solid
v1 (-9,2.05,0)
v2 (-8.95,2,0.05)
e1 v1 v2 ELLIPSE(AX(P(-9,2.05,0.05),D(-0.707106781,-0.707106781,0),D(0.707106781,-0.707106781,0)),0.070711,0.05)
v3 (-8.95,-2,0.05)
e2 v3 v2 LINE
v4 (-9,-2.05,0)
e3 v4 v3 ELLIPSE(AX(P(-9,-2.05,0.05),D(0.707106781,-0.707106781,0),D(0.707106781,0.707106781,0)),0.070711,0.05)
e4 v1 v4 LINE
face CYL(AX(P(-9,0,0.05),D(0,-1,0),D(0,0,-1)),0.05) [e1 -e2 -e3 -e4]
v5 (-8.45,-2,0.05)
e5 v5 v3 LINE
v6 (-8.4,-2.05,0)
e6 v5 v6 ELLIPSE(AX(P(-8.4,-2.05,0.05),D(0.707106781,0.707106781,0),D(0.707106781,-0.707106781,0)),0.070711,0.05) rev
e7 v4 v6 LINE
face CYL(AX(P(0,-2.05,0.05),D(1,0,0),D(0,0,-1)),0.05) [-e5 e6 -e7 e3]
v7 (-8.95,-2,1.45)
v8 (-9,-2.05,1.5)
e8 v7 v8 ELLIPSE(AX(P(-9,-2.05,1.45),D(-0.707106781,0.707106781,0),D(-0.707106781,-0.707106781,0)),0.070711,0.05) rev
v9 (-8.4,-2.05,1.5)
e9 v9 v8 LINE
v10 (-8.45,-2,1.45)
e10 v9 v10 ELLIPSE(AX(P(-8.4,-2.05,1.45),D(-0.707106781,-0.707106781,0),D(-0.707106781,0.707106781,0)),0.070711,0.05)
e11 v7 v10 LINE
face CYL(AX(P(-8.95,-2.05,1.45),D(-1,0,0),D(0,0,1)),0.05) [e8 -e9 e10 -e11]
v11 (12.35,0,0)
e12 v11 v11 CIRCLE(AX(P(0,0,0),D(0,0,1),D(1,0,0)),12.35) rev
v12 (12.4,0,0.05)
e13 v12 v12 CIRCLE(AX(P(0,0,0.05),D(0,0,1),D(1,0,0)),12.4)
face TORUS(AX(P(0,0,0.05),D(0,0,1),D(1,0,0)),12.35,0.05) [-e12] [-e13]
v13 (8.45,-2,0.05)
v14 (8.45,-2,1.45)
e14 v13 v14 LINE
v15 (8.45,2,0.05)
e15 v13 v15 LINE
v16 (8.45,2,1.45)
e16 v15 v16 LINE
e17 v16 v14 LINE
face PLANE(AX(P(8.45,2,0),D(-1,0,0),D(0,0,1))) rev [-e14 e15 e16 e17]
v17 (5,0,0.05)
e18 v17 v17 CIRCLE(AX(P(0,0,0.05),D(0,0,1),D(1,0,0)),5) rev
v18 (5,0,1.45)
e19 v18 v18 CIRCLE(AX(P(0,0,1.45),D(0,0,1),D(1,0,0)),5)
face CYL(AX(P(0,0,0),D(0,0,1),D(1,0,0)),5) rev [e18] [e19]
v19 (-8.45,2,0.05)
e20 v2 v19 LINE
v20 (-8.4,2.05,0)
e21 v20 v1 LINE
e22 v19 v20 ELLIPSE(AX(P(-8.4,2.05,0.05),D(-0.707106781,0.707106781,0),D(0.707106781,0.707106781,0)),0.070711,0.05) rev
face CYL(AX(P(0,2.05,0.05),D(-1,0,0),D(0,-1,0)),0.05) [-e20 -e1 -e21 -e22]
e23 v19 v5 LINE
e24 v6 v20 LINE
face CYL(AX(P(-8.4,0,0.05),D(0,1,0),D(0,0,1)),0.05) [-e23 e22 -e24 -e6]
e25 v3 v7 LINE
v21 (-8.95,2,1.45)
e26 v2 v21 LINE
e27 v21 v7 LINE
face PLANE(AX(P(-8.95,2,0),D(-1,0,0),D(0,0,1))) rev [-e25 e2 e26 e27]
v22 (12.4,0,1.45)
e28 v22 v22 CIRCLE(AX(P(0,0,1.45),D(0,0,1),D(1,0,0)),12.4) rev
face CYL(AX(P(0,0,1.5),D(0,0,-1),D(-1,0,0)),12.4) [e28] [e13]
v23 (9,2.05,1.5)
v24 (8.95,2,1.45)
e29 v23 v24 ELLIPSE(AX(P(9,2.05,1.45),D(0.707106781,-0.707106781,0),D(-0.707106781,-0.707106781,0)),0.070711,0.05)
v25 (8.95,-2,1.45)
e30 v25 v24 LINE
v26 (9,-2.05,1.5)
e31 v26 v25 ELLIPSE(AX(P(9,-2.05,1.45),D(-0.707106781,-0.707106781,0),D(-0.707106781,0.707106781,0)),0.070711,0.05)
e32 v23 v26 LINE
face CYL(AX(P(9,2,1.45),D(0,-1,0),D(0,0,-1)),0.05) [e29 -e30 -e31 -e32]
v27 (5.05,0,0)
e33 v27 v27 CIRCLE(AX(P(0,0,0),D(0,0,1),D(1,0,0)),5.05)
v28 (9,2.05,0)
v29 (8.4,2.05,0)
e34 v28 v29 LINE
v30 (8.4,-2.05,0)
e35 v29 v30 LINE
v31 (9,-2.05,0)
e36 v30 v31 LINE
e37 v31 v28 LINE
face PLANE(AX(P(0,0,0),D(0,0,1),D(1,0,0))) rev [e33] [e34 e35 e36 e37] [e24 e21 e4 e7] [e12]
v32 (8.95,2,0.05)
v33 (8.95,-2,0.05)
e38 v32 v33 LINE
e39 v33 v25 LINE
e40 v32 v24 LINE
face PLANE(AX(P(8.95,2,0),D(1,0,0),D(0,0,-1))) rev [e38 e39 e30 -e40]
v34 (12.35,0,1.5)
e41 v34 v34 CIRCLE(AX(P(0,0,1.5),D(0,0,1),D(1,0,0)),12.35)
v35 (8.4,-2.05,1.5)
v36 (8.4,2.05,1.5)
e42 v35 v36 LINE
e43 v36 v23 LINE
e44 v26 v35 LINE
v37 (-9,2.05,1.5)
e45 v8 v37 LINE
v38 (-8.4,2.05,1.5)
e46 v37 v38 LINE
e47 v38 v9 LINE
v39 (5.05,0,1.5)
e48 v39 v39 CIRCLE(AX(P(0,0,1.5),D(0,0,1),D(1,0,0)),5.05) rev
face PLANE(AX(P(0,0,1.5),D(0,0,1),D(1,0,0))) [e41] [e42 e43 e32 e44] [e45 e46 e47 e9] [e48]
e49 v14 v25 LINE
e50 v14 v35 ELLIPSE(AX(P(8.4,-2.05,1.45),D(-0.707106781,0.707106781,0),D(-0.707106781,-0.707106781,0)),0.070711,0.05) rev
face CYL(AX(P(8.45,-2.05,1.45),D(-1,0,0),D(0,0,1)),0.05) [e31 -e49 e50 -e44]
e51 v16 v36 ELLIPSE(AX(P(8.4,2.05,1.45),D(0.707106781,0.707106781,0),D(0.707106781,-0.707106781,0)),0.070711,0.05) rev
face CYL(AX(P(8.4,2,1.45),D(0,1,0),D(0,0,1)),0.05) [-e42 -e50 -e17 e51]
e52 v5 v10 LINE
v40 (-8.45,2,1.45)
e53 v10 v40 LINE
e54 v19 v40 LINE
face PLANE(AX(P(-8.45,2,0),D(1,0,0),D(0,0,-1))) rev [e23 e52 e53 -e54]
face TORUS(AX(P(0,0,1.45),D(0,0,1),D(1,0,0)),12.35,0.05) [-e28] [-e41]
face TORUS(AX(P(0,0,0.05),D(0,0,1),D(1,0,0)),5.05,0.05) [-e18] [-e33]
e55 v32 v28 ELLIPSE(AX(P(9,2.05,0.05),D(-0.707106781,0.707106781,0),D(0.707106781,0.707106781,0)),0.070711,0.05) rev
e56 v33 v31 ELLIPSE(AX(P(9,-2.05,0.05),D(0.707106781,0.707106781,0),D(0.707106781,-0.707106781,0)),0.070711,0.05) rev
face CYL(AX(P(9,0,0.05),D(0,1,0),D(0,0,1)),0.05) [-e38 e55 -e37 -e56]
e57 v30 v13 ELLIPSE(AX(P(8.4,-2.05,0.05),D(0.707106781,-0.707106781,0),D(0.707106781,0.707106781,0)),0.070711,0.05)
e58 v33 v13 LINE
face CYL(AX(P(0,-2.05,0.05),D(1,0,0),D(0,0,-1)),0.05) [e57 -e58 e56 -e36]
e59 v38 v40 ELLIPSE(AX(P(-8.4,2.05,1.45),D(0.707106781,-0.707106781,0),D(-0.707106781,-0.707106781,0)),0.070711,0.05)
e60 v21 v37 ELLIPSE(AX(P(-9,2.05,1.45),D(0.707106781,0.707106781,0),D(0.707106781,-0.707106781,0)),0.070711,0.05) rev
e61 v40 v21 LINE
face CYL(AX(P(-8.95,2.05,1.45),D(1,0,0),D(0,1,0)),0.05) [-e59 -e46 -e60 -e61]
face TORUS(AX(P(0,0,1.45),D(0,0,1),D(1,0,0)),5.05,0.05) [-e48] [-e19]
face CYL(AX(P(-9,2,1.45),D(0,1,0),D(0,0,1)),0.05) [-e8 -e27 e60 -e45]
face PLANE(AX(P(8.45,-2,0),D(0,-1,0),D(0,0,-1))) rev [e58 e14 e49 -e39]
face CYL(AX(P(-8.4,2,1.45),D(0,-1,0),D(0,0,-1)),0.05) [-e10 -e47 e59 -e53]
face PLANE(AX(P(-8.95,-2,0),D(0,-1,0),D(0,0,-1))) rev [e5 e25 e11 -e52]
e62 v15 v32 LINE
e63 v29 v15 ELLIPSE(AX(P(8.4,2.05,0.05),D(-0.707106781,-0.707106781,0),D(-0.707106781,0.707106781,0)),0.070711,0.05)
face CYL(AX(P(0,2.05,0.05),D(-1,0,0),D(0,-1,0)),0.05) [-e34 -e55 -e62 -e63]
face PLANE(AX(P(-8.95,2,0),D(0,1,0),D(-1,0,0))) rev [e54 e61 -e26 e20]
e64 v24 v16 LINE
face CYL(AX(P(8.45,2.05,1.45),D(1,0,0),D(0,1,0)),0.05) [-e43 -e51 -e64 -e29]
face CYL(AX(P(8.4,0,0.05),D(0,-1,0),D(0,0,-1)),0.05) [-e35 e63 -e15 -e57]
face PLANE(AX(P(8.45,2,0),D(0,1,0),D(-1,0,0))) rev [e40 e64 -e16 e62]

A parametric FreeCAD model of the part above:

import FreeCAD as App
import Part
import Sketcher


def edges_at(feature, points):
    """Names of the edges that pass closest to the given points."""
    edges = feature.Shape.Edges
    near = lambda p: min(range(len(edges)), key=lambda i: edges[i].distToShape(Part.Vertex(*p))[0])
    return sorted({f"Edge{near(p) + 1}" for p in points})

doc = App.newDocument("Part")
params = doc.addObject("Spreadsheet::Sheet", "Params")
for row, (alias, value) in enumerate([
    ("sketch1_diameter", "24.8 mm"),
    ("pad1_length", "1.5 mm"),
    ("sketch2_diameter", "10 mm"),
    ("sketch2_height", "4 mm"),
    ("sketch2_width", "0.5 mm"),
    ("fillet_radius", "0.05 mm"),
], start=1):
    params.set(f"A{row}", alias)
    params.set(f"B{row}", "=" + value)
    params.setAlias(f"B{row}", alias)

body = doc.addObject("PartDesign::Body", "Body")

# Sketch on XY plane
sketch1 = doc.addObject("Sketcher::SketchObject", "Sketch")
body.addObject(sketch1)
sketch1.AttachmentSupport = (doc.XY_Plane, [""])
sketch1.MapMode = "FlatFace"
sketch1.addGeometry(Part.Circle(App.Vector(0, 0, 0), App.Vector(0, 0, 1), 12.4), False)
sketch1.addConstraint(Sketcher.Constraint("Coincident", 0, 3, -1, 1))
sketch1.addConstraint(Sketcher.Constraint("Diameter", 0, 24.8))
sketch1.setExpression("Constraints[1]", "Params.sketch1_diameter")
pad1 = doc.addObject("PartDesign::Pad", "Pad")
body.addObject(pad1)
pad1.Profile = sketch1
pad1.setExpression("Length", "Params.pad1_length")

# Sketch on XY plane
sketch2 = doc.addObject("Sketcher::SketchObject", "Sketch001")
body.addObject(sketch2)
sketch2.AttachmentSupport = (doc.XY_Plane, [""])
sketch2.MapMode = "FlatFace"
sketch2.AttachmentOffset = App.Placement(App.Vector(0, 0, 1.5), App.Rotation())
sketch2.addGeometry(Part.Circle(App.Vector(0, 0, 0), App.Vector(0, 0, 1), 5), False)
sketch2.addGeometry(Part.LineSegment(App.Vector(-8.95, 2, 0), App.Vector(-8.95, -2, 0)), False)
sketch2.addGeometry(Part.LineSegment(App.Vector(-8.95, -2, 0), App.Vector(-8.45, -2, 0)), False)
sketch2.addGeometry(Part.LineSegment(App.Vector(-8.45, -2, 0), App.Vector(-8.45, 2, 0)), False)
sketch2.addGeometry(Part.LineSegment(App.Vector(-8.45, 2, 0), App.Vector(-8.95, 2, 0)), False)
sketch2.addGeometry(Part.LineSegment(App.Vector(8.45, 2, 0), App.Vector(8.45, -2, 0)), False)
sketch2.addGeometry(Part.LineSegment(App.Vector(8.45, -2, 0), App.Vector(8.95, -2, 0)), False)
sketch2.addGeometry(Part.LineSegment(App.Vector(8.95, -2, 0), App.Vector(8.95, 2, 0)), False)
sketch2.addGeometry(Part.LineSegment(App.Vector(8.95, 2, 0), App.Vector(8.45, 2, 0)), False)
sketch2.addConstraint(Sketcher.Constraint("Coincident", 1, 2, 2, 1))
sketch2.addConstraint(Sketcher.Constraint("Coincident", 2, 2, 3, 1))
sketch2.addConstraint(Sketcher.Constraint("Coincident", 3, 2, 4, 1))
sketch2.addConstraint(Sketcher.Constraint("Coincident", 4, 2, 1, 1))
sketch2.addConstraint(Sketcher.Constraint("Coincident", 5, 2, 6, 1))
sketch2.addConstraint(Sketcher.Constraint("Coincident", 6, 2, 7, 1))
sketch2.addConstraint(Sketcher.Constraint("Coincident", 7, 2, 8, 1))
sketch2.addConstraint(Sketcher.Constraint("Coincident", 8, 2, 5, 1))
sketch2.addConstraint(Sketcher.Constraint("Vertical", 1))
sketch2.addConstraint(Sketcher.Constraint("Horizontal", 2))
sketch2.addConstraint(Sketcher.Constraint("Vertical", 3))
sketch2.addConstraint(Sketcher.Constraint("Horizontal", 4))
sketch2.addConstraint(Sketcher.Constraint("Vertical", 5))
sketch2.addConstraint(Sketcher.Constraint("Horizontal", 6))
sketch2.addConstraint(Sketcher.Constraint("Vertical", 7))
sketch2.addConstraint(Sketcher.Constraint("Horizontal", 8))
sketch2.addConstraint(Sketcher.Constraint("Coincident", 0, 3, -1, 1))
sketch2.addConstraint(Sketcher.Constraint("Symmetric", 3, 2, 5, 2, -1, 1))
sketch2.addConstraint(Sketcher.Constraint("Symmetric", 1, 2, 7, 2, -1, 1))
sketch2.addConstraint(Sketcher.Constraint("Horizontal", 2, 2, 5, 2))
sketch2.addConstraint(Sketcher.Constraint("Diameter", 0, 10.0))
sketch2.addConstraint(Sketcher.Constraint("DistanceY", 1, 2, 1, 1, 4.0))
sketch2.addConstraint(Sketcher.Constraint("DistanceX", 2, 1, 2, 2, 0.5))
sketch2.addConstraint(Sketcher.Constraint("DistanceX", 2, 2, 5, 2, 16.9))
sketch2.setExpression("Constraints[20]", "Params.sketch2_diameter")
sketch2.setExpression("Constraints[21]", "Params.sketch2_height")
sketch2.setExpression("Constraints[22]", "Params.sketch2_width")
pocket1 = doc.addObject("PartDesign::Pocket", "Pocket")
body.addObject(pocket1)
pocket1.Profile = sketch2
pocket1.Type = "ThroughAll"
doc.recompute()

fillet = doc.addObject("PartDesign::Fillet", "Fillet")
body.addObject(fillet)
fillet.Base = (pocket1, edges_at(pocket1, [
    (-8.95, 0, 0),
    (-8.7, 2, 0),
    (-8.45, 0, 0),
    (-8.7, -2, 0),
    (-8.95, 0, 1.5),
    (-8.7, -2, 1.5),
    (-8.45, 0, 1.5),
    (-8.7, 2, 1.5),
    (-12.4, 0, 0),
    (8.45, 0, 0),
    (8.7, 2, 0),
    (8.95, 0, 0),
    (8.7, -2, 0),
    (8.45, 0, 1.5),
    (8.7, -2, 1.5),
    (8.95, 0, 1.5),
    (8.7, 2, 1.5),
    (-12.4, 0, 1.5),
    (-5, 0, 0),
    (-5, 0, 1.5),
]))
fillet.setExpression("Radius", "Params.fillet_radius")

doc.recompute()
